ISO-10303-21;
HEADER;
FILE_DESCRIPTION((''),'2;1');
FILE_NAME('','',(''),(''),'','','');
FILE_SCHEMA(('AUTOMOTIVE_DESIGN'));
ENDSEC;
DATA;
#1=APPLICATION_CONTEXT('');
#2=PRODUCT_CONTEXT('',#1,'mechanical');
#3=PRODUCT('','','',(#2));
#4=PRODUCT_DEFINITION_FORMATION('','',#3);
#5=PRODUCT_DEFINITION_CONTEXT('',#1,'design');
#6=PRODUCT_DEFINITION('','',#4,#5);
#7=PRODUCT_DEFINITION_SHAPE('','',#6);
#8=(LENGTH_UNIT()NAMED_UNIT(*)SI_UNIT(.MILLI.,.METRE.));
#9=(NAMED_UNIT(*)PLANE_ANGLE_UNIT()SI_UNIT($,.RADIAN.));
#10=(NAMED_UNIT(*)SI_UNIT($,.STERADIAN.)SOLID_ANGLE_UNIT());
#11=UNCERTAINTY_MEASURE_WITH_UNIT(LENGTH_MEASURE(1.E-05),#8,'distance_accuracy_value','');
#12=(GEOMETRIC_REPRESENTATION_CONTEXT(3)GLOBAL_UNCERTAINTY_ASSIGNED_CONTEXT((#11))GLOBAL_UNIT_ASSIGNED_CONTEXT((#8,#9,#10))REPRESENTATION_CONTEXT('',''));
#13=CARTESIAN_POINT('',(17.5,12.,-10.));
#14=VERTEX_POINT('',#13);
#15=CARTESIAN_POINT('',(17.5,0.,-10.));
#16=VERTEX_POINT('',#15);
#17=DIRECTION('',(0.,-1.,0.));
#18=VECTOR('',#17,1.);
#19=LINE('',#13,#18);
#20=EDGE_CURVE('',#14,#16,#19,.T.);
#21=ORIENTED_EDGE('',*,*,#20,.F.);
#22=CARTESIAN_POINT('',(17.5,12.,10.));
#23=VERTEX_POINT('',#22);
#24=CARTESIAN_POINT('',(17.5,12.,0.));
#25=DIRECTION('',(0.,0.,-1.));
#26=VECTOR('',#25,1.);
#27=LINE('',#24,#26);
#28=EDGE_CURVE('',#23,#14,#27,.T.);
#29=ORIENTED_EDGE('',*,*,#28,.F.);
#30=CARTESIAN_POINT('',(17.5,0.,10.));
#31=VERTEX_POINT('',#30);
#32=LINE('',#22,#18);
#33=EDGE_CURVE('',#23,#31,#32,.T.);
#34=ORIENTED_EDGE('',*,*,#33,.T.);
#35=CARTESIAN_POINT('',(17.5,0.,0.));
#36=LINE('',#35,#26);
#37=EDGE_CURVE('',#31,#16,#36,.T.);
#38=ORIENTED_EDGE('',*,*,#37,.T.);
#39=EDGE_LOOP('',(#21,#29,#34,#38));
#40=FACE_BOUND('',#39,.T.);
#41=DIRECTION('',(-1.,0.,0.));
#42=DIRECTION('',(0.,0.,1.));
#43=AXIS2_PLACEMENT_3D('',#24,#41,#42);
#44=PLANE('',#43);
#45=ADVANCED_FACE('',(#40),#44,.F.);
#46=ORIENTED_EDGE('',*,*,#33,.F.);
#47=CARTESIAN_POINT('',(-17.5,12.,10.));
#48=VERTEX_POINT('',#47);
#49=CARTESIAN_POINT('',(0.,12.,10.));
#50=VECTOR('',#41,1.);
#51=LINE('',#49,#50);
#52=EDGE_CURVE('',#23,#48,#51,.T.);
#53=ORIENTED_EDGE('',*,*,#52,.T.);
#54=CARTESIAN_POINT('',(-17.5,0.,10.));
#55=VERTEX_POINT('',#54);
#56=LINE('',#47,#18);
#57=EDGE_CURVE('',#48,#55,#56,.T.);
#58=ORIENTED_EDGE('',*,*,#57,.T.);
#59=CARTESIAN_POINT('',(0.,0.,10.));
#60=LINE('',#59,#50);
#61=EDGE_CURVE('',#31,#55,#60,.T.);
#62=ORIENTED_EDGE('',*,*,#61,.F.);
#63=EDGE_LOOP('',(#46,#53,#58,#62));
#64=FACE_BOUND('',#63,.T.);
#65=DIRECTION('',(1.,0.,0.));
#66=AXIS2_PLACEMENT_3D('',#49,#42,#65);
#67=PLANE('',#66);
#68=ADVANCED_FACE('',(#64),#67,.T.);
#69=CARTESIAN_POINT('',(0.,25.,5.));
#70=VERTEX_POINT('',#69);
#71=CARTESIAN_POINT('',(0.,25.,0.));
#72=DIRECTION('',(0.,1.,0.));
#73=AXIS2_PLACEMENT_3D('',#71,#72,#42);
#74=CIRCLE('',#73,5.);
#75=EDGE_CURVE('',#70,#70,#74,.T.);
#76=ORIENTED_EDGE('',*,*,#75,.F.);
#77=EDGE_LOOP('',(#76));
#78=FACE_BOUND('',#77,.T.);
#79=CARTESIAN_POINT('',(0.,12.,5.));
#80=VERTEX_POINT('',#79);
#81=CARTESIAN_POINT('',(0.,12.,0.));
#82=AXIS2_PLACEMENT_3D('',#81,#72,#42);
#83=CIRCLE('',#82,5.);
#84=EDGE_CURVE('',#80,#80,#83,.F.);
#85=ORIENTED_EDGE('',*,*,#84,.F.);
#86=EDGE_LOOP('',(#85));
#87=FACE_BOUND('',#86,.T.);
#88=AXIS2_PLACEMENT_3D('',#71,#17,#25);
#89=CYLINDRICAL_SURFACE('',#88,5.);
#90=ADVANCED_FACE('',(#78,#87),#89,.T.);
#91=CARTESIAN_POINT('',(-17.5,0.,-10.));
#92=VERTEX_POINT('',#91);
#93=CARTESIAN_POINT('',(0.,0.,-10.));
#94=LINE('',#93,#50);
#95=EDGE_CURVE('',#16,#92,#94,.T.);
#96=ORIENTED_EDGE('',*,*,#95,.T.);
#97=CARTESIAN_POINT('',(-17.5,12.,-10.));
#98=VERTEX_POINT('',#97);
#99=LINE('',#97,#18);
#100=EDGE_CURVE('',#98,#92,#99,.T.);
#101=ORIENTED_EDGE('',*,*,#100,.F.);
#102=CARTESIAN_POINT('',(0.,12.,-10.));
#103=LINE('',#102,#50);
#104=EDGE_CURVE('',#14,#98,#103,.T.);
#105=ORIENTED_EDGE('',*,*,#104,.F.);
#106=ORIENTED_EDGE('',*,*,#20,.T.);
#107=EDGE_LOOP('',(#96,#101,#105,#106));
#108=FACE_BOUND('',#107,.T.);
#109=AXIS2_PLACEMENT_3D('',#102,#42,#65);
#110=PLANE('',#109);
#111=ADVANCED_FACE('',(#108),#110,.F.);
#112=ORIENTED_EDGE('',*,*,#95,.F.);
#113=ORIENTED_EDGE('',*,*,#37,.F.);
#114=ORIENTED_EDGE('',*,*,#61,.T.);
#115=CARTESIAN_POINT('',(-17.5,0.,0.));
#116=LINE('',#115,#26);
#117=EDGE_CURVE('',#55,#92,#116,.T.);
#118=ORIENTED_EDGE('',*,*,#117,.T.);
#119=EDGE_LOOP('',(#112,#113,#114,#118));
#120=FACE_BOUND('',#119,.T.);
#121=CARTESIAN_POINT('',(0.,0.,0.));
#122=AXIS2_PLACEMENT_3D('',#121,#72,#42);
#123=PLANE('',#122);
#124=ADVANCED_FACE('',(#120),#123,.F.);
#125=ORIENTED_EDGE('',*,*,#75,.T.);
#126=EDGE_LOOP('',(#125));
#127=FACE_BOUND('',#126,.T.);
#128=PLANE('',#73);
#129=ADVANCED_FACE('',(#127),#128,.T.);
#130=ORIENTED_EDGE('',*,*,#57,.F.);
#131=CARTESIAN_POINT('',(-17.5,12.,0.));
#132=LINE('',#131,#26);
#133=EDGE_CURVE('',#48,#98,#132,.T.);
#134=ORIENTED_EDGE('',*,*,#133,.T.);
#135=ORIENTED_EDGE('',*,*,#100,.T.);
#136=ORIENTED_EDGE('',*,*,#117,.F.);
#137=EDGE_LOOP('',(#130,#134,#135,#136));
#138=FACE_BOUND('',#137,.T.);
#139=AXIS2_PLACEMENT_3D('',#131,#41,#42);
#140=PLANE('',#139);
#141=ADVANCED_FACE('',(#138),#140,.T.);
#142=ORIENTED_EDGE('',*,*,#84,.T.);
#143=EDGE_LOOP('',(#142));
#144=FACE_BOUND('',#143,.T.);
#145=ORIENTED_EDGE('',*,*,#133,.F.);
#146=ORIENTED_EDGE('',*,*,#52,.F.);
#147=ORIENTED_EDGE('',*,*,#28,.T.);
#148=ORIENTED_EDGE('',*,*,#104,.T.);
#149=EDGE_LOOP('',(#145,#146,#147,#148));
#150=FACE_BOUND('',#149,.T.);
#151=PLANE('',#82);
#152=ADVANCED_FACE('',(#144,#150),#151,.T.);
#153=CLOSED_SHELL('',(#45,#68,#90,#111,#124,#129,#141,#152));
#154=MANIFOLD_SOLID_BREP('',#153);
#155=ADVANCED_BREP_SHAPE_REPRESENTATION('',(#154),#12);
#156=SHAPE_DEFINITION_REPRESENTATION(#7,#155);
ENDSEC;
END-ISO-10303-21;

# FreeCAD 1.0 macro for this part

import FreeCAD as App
import Part
import Sketcher

V = App.Vector


def add_polygon(sketch, points):
    """Adds a closed chain of lines whose ends are joined by coincident constraints."""
    first, n = sketch.GeometryCount, len(points)
    for a, b in zip(points, points[1:] + points[:1]):
        sketch.addGeometry(Part.LineSegment(App.Vector(*a, 0), App.Vector(*b, 0)), False)
    for i in range(n):
        sketch.addConstraint(Sketcher.Constraint("Coincident", first + i, 2, first + (i + 1) % n, 1))

doc = App.newDocument("Part")
body = doc.addObject("PartDesign::Body", "Body")

# Sketch on XZ plane
sketch1 = doc.addObject("Sketcher::SketchObject", "Sketch")
body.addObject(sketch1)
sketch1.AttachmentSupport = (doc.XZ_Plane, [""])
sketch1.MapMode = "FlatFace"
add_polygon(sketch1, [(-17.5, -10), (-17.5, 10), (17.5, 10), (17.5, -10)])  # lines 0-3
sketch1.addGeometry(Part.Circle(V(0, 0, 0), V(0, 0, 1), 5), False)  # 4
sketch1.addConstraint([
    Sketcher.Constraint("Vertical", 0),
    Sketcher.Constraint("Horizontal", 1),
    Sketcher.Constraint("Vertical", 2),
    Sketcher.Constraint("Horizontal", 3),
    Sketcher.Constraint("Coincident", 4, 3, -1, 1),
    Sketcher.Constraint("Symmetric", 0, 2, 2, 2, -1, 1),
    Sketcher.Constraint("Diameter", 4, 10.0),
    Sketcher.Constraint("DistanceX", 1, 1, 1, 2, 35.0),
    Sketcher.Constraint("DistanceY", 0, 1, 0, 2, 20.0),
])
pad1 = doc.addObject("PartDesign::Pad", "Pad")
body.addObject(pad1)
pad1.Profile = sketch1
pad1.Length = 12
pad1.Reversed = True

# Sketch on XZ plane
sketch2 = doc.addObject("Sketcher::SketchObject", "Sketch001")
body.addObject(sketch2)
sketch2.AttachmentSupport = (doc.XZ_Plane, [""])
sketch2.MapMode = "FlatFace"
sketch2.addGeometry(Part.Circle(V(0, 0, 0), V(0, 0, 1), 5), False)
sketch2.addConstraint([
    Sketcher.Constraint("Coincident", 0, 3, -1, 1),
    Sketcher.Constraint("Diameter", 0, 10.0),
])
pad2 = doc.addObject("PartDesign::Pad", "Pad001")
body.addObject(pad2)
pad2.Profile = sketch2
pad2.Length = 25
pad2.Reversed = True

doc.recompute()
